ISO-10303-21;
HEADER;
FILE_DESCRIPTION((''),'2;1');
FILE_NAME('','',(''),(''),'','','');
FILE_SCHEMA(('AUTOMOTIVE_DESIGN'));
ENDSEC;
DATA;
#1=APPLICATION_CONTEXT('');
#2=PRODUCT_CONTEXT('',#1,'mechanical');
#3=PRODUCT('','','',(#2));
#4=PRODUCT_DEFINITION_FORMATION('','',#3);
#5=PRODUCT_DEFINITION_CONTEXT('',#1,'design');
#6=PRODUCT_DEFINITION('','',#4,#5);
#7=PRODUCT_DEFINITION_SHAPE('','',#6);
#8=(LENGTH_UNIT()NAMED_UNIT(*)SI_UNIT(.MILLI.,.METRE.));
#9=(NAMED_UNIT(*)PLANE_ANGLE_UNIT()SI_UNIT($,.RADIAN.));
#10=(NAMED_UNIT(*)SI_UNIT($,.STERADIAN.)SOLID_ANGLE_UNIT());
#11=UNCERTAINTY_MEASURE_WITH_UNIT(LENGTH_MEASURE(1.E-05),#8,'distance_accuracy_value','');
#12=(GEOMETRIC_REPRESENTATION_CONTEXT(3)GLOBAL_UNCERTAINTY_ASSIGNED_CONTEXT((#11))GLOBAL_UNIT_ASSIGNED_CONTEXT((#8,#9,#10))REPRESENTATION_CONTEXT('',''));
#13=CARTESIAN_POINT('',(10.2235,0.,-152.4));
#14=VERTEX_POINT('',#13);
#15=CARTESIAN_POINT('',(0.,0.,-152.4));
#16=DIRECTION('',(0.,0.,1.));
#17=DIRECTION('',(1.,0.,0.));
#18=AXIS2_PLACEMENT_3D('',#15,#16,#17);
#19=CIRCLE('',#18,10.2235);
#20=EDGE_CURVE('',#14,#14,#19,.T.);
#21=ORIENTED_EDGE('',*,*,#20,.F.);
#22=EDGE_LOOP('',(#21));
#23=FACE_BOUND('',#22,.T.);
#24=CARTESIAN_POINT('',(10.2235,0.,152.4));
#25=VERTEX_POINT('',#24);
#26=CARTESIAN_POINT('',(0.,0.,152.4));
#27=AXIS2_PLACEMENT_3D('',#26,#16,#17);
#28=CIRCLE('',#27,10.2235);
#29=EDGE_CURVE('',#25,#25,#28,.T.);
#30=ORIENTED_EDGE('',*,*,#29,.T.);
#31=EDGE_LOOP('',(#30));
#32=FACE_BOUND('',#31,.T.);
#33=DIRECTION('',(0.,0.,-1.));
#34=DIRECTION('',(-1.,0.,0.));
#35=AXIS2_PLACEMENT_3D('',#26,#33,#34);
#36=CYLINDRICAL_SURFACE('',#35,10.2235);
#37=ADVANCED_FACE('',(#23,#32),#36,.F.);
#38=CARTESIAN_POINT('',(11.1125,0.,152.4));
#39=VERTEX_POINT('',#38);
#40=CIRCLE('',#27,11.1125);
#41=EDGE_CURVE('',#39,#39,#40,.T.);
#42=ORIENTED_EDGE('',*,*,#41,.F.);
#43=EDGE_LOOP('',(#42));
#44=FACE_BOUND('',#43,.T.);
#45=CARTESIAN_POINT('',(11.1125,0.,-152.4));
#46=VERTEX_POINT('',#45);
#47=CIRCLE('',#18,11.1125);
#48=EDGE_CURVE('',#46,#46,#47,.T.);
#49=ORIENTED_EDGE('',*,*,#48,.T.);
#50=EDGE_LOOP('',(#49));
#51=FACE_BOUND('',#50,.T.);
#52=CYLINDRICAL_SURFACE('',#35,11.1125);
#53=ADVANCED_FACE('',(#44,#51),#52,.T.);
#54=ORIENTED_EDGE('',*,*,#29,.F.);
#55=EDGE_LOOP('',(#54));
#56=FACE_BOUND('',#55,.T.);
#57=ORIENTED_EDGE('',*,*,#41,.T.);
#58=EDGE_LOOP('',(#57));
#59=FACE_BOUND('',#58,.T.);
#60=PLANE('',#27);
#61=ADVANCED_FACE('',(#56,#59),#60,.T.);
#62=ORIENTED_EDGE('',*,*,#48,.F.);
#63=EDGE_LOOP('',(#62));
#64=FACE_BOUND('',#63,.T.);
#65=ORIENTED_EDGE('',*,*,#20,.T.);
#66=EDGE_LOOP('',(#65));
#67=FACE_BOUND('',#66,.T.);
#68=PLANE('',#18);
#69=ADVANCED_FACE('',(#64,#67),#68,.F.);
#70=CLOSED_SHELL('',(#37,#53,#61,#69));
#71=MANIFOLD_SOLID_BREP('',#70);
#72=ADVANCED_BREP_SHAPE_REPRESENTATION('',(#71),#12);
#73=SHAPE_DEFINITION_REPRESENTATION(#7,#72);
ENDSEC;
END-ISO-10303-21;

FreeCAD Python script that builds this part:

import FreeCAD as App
import Part
import Sketcher
Q = App.Units.Quantity

doc = App.newDocument("Part")
body = doc.addObject("PartDesign::Body", "Body")

# Sketch on XY plane
sketch1 = body.newObject("Sketcher::SketchObject", "Sketch")
sketch1.AttachmentSupport = (doc.getObject("XY_Plane"), [""])
sketch1.MapMode = "FlatFace"
sketch1.addGeometry(Part.Circle(App.Vector(0, 0, 0), App.Vector(0, 0, 1), 11), False)
sketch1.addGeometry(Part.Circle(App.Vector(0, 0, 0), App.Vector(0, 0, 1), 10), False)
sketch1.addConstraint(Sketcher.Constraint("Coincident", 0, 3, -1, 1))
sketch1.addConstraint(Sketcher.Constraint("Coincident", 1, 3, -1, 1))
sketch1.addConstraint(Sketcher.Constraint("Diameter", 0, Q("0.875 in")))
sketch1.addConstraint(Sketcher.Constraint("Diameter", 1, Q("0.805 in")))
pad1 = body.newObject("PartDesign::Pad", "Pad")
pad1.Profile = sketch1
pad1.Type = "TwoLengths"
pad1.Length = Q("6 in")
pad1.Length2 = Q("6 in")

doc.recompute()
